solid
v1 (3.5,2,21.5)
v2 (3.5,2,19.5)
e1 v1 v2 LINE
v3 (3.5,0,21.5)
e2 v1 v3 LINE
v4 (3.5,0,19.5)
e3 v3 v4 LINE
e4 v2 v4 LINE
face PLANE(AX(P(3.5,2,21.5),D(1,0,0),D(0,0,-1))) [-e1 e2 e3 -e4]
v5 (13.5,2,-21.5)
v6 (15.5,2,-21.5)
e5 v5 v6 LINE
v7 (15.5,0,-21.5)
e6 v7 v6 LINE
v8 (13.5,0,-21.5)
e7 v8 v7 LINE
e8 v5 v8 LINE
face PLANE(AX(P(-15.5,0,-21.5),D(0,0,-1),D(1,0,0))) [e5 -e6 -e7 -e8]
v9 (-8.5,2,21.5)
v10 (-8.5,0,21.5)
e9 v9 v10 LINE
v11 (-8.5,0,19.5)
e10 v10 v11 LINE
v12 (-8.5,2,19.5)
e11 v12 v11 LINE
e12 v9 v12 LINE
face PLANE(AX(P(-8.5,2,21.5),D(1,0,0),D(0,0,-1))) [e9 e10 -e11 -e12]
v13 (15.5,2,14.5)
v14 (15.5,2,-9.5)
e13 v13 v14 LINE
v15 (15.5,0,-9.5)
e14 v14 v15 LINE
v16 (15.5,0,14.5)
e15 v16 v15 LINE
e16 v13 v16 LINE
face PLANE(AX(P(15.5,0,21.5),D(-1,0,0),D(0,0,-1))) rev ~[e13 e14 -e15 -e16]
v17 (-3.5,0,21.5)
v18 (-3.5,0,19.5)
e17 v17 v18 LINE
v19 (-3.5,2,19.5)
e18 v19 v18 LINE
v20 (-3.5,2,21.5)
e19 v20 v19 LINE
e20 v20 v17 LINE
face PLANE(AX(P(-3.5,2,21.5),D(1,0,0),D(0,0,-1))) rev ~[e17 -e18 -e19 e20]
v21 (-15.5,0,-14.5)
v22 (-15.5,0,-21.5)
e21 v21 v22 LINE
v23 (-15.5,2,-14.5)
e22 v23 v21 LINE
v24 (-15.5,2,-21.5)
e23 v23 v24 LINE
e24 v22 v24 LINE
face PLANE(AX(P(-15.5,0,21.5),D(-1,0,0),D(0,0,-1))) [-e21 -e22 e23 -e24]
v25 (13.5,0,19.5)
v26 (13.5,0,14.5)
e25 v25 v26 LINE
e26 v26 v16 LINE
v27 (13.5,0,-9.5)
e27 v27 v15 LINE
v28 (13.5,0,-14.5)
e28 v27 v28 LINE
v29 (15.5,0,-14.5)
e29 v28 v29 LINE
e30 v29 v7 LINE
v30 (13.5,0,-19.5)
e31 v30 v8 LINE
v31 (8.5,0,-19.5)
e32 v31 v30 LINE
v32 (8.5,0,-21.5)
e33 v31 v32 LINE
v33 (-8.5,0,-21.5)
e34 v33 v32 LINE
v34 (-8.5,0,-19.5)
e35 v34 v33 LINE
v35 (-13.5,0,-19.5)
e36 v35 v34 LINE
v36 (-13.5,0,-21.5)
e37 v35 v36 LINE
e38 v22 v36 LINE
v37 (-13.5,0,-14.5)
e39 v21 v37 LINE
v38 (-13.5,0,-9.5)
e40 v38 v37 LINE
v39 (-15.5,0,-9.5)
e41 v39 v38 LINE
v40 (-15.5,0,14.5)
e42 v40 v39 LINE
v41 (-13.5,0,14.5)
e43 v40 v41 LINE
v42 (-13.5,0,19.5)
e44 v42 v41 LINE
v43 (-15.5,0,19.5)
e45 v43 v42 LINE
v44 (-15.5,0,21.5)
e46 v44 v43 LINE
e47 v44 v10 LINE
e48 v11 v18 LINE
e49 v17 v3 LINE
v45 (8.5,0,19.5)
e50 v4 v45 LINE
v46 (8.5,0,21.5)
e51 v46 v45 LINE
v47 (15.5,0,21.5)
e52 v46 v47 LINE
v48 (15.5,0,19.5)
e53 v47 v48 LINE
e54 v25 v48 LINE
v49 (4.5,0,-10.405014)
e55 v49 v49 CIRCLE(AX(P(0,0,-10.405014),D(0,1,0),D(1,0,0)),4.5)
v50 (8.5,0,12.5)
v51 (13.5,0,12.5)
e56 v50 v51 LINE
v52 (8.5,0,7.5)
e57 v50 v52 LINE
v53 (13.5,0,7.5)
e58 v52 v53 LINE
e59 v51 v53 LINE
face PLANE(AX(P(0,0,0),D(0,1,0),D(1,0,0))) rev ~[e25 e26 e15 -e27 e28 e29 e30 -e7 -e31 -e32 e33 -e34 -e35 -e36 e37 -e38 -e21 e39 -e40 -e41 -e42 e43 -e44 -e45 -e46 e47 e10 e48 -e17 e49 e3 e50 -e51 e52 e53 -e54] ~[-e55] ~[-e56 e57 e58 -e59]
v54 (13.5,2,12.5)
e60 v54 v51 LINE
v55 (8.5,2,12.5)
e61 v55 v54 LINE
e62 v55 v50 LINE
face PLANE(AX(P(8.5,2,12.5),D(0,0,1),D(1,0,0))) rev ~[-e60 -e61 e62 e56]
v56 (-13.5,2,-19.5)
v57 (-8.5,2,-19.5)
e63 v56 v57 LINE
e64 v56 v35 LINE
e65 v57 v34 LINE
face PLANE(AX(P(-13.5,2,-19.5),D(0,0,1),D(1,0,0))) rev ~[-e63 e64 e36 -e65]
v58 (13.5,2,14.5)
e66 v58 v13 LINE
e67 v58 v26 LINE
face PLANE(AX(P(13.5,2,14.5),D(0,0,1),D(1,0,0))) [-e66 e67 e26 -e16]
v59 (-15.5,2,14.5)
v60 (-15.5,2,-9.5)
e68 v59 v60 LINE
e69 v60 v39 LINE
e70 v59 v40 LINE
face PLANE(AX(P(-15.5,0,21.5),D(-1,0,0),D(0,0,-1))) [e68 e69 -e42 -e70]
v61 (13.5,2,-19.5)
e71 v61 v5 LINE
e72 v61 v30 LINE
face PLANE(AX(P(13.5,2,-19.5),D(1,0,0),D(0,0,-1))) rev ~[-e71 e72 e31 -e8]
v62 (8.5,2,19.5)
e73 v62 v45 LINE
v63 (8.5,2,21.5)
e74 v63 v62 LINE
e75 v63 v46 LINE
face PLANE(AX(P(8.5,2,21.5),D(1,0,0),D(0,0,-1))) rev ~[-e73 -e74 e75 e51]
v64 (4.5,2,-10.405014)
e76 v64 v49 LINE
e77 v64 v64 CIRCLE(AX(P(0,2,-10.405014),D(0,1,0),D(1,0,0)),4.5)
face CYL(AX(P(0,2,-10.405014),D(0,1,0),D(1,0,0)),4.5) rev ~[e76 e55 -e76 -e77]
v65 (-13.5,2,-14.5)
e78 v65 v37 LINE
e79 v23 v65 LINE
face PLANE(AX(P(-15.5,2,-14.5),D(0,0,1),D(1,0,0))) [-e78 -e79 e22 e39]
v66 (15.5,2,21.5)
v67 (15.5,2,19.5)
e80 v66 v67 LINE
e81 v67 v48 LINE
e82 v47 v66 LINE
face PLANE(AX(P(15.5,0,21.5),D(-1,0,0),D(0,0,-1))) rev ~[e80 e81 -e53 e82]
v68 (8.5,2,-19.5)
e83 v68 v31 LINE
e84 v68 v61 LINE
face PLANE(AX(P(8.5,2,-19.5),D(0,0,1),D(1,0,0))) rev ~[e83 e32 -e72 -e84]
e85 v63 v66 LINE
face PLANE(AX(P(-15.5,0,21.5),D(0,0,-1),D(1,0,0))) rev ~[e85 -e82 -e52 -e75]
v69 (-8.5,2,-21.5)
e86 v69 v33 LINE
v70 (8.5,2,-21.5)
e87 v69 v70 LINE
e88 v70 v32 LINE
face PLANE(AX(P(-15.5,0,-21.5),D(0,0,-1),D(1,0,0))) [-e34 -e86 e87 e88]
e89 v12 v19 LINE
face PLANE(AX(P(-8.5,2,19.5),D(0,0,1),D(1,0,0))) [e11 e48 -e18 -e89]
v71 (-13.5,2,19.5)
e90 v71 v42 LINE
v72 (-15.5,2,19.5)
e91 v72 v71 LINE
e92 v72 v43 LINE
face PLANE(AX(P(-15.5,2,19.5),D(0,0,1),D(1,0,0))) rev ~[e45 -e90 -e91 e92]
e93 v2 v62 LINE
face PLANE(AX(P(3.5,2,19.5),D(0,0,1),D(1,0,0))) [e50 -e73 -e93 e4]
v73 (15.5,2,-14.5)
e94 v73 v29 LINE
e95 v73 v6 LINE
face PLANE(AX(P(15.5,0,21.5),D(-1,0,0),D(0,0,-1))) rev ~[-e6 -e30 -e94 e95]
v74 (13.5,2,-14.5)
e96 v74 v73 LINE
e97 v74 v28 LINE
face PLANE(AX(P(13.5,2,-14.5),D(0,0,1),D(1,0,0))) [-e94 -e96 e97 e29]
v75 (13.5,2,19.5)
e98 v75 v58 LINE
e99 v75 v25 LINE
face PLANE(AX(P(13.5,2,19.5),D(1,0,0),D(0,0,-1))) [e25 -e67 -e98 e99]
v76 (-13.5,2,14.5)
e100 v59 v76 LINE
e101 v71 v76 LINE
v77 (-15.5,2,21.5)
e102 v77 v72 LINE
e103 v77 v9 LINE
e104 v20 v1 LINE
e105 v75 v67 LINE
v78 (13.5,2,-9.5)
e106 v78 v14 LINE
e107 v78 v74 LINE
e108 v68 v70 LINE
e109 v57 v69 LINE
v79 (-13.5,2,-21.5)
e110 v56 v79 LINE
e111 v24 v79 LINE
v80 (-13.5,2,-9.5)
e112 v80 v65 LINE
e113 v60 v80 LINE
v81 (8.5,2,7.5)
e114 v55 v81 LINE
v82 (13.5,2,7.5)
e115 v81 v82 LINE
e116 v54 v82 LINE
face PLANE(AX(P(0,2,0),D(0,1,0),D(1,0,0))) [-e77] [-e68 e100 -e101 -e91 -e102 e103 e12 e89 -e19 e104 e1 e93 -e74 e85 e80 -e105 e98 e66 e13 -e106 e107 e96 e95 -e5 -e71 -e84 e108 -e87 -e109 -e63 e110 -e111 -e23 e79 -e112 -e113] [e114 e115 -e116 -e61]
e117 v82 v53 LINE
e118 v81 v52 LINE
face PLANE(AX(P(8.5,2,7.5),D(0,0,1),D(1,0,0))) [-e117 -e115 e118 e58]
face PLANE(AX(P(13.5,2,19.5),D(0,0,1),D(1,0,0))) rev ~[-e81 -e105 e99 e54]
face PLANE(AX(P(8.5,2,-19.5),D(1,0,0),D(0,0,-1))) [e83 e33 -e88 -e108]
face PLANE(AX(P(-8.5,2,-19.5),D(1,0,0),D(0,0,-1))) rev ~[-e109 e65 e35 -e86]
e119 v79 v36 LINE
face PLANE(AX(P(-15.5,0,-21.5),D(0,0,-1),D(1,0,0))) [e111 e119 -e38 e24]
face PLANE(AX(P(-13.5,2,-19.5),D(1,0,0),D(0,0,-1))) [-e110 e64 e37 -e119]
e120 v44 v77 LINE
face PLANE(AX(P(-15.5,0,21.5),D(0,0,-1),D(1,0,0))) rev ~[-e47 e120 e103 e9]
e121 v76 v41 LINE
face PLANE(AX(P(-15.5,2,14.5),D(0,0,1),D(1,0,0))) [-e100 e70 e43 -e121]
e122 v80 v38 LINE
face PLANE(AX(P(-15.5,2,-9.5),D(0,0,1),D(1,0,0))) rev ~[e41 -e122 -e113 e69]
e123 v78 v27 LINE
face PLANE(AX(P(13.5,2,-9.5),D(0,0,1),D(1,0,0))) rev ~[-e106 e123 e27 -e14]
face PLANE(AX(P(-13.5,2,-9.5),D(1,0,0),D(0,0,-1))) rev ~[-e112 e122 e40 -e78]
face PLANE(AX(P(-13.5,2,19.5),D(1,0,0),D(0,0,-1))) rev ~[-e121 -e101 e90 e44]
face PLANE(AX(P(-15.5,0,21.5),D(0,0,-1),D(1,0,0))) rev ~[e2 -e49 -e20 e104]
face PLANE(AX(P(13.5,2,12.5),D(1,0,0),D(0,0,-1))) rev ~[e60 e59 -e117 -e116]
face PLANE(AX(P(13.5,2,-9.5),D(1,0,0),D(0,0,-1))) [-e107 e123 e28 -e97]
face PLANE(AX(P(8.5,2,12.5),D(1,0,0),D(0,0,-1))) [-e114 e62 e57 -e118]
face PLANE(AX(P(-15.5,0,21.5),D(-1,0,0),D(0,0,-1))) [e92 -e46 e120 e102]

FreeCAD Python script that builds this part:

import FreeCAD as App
import Part
import Sketcher

V = App.Vector
Q = App.Units.Quantity

doc = App.newDocument("Part")
body = doc.addObject("PartDesign::Body", "Body")

# Sketch on XZ plane
sketch1 = doc.addObject("Sketcher::SketchObject", "Sketch")
body.addObject(sketch1)
sketch1.AttachmentSupport = (doc.XZ_Plane, [""])
sketch1.MapMode = "FlatFace"
sketch1.addGeometry([
    Part.LineSegment(V(-15.5, -21.5, 0), V(-15.5, 21.5, 0)),
    Part.LineSegment(V(-15.5, 21.5, 0), V(15.5, 21.5, 0)),
    Part.LineSegment(V(15.5, 21.5, 0), V(15.5, -21.5, 0)),
    Part.LineSegment(V(15.5, -21.5, 0), V(-15.5, -21.5, 0)),
], False)
sketch1.addConstraint([
    Sketcher.Constraint("Coincident", 0, 2, 1, 1),
    Sketcher.Constraint("Coincident", 1, 2, 2, 1),
    Sketcher.Constraint("Coincident", 2, 2, 3, 1),
    Sketcher.Constraint("Coincident", 3, 2, 0, 1),
    Sketcher.Constraint("Vertical", 0),
    Sketcher.Constraint("Horizontal", 1),
    Sketcher.Constraint("Vertical", 2),
    Sketcher.Constraint("Horizontal", 3),
    Sketcher.Constraint("Symmetric", 0, 2, 2, 2, -1, 1),
    Sketcher.Constraint("DistanceX", 1, 1, 1, 2, Q("31 mm")),
    Sketcher.Constraint("DistanceY", 0, 1, 0, 2, Q("43 mm")),
])
pad1 = doc.addObject("PartDesign::Pad", "Pad")
body.addObject(pad1)
pad1.Profile = sketch1
pad1.Length = 2
pad1.Reversed = True

# Sketch on XZ plane
sketch2 = doc.addObject("Sketcher::SketchObject", "Sketch001")
body.addObject(sketch2)
sketch2.AttachmentSupport = (doc.XZ_Plane, [""])
sketch2.MapMode = "FlatFace"
sketch2.AttachmentOffset = App.Placement(V(0, 0, -2), App.Rotation())
sketch2.addGeometry([
    Part.LineSegment(V(8.5, -21.5, 0), V(8.5, -19.5, 0)),  # 0
    Part.LineSegment(V(8.5, -19.5, 0), V(13.5, -19.5, 0)),  # 1
    Part.LineSegment(V(13.5, -19.5, 0), V(13.5, -21.5, 0)),  # 2
    Part.LineSegment(V(13.5, -21.5, 0), V(8.5, -21.5, 0)),  # 3
    Part.LineSegment(V(-13.5, -21.5, 0), V(-13.5, -19.5, 0)),  # 4
    Part.LineSegment(V(-13.5, -19.5, 0), V(-8.5, -19.5, 0)),  # 5
    Part.LineSegment(V(-8.5, -19.5, 0), V(-8.5, -21.5, 0)),  # 6
    Part.LineSegment(V(-8.5, -21.5, 0), V(-13.5, -21.5, 0)),  # 7
], False)
sketch2.addConstraint([
    Sketcher.Constraint("Coincident", 0, 2, 1, 1),
    Sketcher.Constraint("Coincident", 1, 2, 2, 1),
    Sketcher.Constraint("Coincident", 2, 2, 3, 1),
    Sketcher.Constraint("Coincident", 3, 2, 0, 1),
    Sketcher.Constraint("Coincident", 4, 2, 5, 1),
    Sketcher.Constraint("Coincident", 5, 2, 6, 1),
    Sketcher.Constraint("Coincident", 6, 2, 7, 1),
    Sketcher.Constraint("Coincident", 7, 2, 4, 1),
    Sketcher.Constraint("Vertical", 0),
    Sketcher.Constraint("Horizontal", 1),
    Sketcher.Constraint("Vertical", 2),
    Sketcher.Constraint("Horizontal", 3),
    Sketcher.Constraint("Vertical", 4),
    Sketcher.Constraint("Horizontal", 5),
    Sketcher.Constraint("Vertical", 6),
    Sketcher.Constraint("Horizontal", 7),
    Sketcher.Constraint("Symmetric", 1, 2, 4, 2, -2),
    Sketcher.Constraint("Symmetric", 3, 2, 6, 2, -2),
    Sketcher.Constraint("DistanceX", 1, 1, 1, 2, Q("5 mm")),
    Sketcher.Constraint("DistanceY", 0, 1, 0, 2, Q("2 mm")),
    Sketcher.Constraint("DistanceX", 4, 2, 0, 2, Q("22 mm")),
    Sketcher.Constraint("DistanceY", 0, 2, -1, 1, Q("19.5 mm")),
])
pocket1 = doc.addObject("PartDesign::Pocket", "Pocket")
body.addObject(pocket1)
pocket1.Profile = sketch2
pocket1.Length = 2
pocket1.Reversed = True

# Sketch on XZ plane
sketch3 = doc.addObject("Sketcher::SketchObject", "Sketch002")
body.addObject(sketch3)
sketch3.AttachmentSupport = (doc.XZ_Plane, [""])
sketch3.MapMode = "FlatFace"
sketch3.AttachmentOffset = App.Placement(V(0, 0, -2), App.Rotation())
sketch3.addGeometry([
    Part.Circle(V(0, -10.405014, 0), V(0, 0, 1), 4.5),  # 0
    Part.LineSegment(V(8.5, 7.5, 0), V(8.5, 12.5, 0)),  # 1
    Part.LineSegment(V(8.5, 12.5, 0), V(13.5, 12.5, 0)),  # 2
    Part.LineSegment(V(13.5, 12.5, 0), V(13.5, 7.5, 0)),  # 3
    Part.LineSegment(V(13.5, 7.5, 0), V(8.5, 7.5, 0)),  # 4
    Part.LineSegment(V(13.5, 14.5, 0), V(13.5, 19.5, 0)),  # 5
    Part.LineSegment(V(13.5, 19.5, 0), V(15.5, 19.5, 0)),  # 6
    Part.LineSegment(V(15.5, 19.5, 0), V(15.5, 14.5, 0)),  # 7
    Part.LineSegment(V(15.5, 14.5, 0), V(13.5, 14.5, 0)),  # 8
    Part.LineSegment(V(3.5, 19.5, 0), V(3.5, 21.5, 0)),  # 9
    Part.LineSegment(V(3.5, 21.5, 0), V(8.5, 21.5, 0)),  # 10
    Part.LineSegment(V(8.5, 21.5, 0), V(8.5, 19.5, 0)),  # 11
    Part.LineSegment(V(8.5, 19.5, 0), V(3.5, 19.5, 0)),  # 12
    Part.LineSegment(V(-15.5, 14.5, 0), V(-15.5, 19.5, 0)),  # 13
    Part.LineSegment(V(-15.5, 19.5, 0), V(-13.5, 19.5, 0)),  # 14
    Part.LineSegment(V(-13.5, 19.5, 0), V(-13.5, 14.5, 0)),  # 15
    Part.LineSegment(V(-13.5, 14.5, 0), V(-15.5, 14.5, 0)),  # 16
    Part.LineSegment(V(-8.5, 19.5, 0), V(-8.5, 21.5, 0)),  # 17
    Part.LineSegment(V(-8.5, 21.5, 0), V(-3.5, 21.5, 0)),  # 18
    Part.LineSegment(V(-3.5, 21.5, 0), V(-3.5, 19.5, 0)),  # 19
    Part.LineSegment(V(-3.5, 19.5, 0), V(-8.5, 19.5, 0)),  # 20
    Part.LineSegment(V(13.5, -14.5, 0), V(13.5, -9.5, 0)),  # 21
    Part.LineSegment(V(13.5, -9.5, 0), V(15.5, -9.5, 0)),  # 22
    Part.LineSegment(V(15.5, -9.5, 0), V(15.5, -14.5, 0)),  # 23
    Part.LineSegment(V(15.5, -14.5, 0), V(13.5, -14.5, 0)),  # 24
    Part.LineSegment(V(-15.5, -14.5, 0), V(-15.5, -9.5, 0)),  # 25
    Part.LineSegment(V(-15.5, -9.5, 0), V(-13.5, -9.5, 0)),  # 26
    Part.LineSegment(V(-13.5, -9.5, 0), V(-13.5, -14.5, 0)),  # 27
    Part.LineSegment(V(-13.5, -14.5, 0), V(-15.5, -14.5, 0)),  # 28
], False)
sketch3.addConstraint([
    Sketcher.Constraint("Coincident", 1, 2, 2, 1),
    Sketcher.Constraint("Coincident", 2, 2, 3, 1),
    Sketcher.Constraint("Coincident", 3, 2, 4, 1),
    Sketcher.Constraint("Coincident", 4, 2, 1, 1),
    Sketcher.Constraint("Coincident", 5, 2, 6, 1),
    Sketcher.Constraint("Coincident", 6, 2, 7, 1),
    Sketcher.Constraint("Coincident", 7, 2, 8, 1),
    Sketcher.Constraint("Coincident", 8, 2, 5, 1),
    Sketcher.Constraint("Coincident", 9, 2, 10, 1),
    Sketcher.Constraint("Coincident", 10, 2, 11, 1),
    Sketcher.Constraint("Coincident", 11, 2, 12, 1),
    Sketcher.Constraint("Coincident", 12, 2, 9, 1),
    Sketcher.Constraint("Coincident", 13, 2, 14, 1),
    Sketcher.Constraint("Coincident", 14, 2, 15, 1),
    Sketcher.Constraint("Coincident", 15, 2, 16, 1),
    Sketcher.Constraint("Coincident", 16, 2, 13, 1),
    Sketcher.Constraint("Coincident", 17, 2, 18, 1),
    Sketcher.Constraint("Coincident", 18, 2, 19, 1),
    Sketcher.Constraint("Coincident", 19, 2, 20, 1),
    Sketcher.Constraint("Coincident", 20, 2, 17, 1),
    Sketcher.Constraint("Coincident", 21, 2, 22, 1),
    Sketcher.Constraint("Coincident", 22, 2, 23, 1),
    Sketcher.Constraint("Coincident", 23, 2, 24, 1),
    Sketcher.Constraint("Coincident", 24, 2, 21, 1),
    Sketcher.Constraint("Coincident", 25, 2, 26, 1),
    Sketcher.Constraint("Coincident", 26, 2, 27, 1),
    Sketcher.Constraint("Coincident", 27, 2, 28, 1),
    Sketcher.Constraint("Coincident", 28, 2, 25, 1),
    Sketcher.Constraint("Vertical", 1),
    Sketcher.Constraint("Horizontal", 2),
    Sketcher.Constraint("Vertical", 3),
    Sketcher.Constraint("Horizontal", 4),
    Sketcher.Constraint("Vertical", 5),
    Sketcher.Constraint("Horizontal", 6),
    Sketcher.Constraint("Vertical", 7),
    Sketcher.Constraint("Horizontal", 8),
    Sketcher.Constraint("Vertical", 9),
    Sketcher.Constraint("Horizontal", 10),
    Sketcher.Constraint("Vertical", 11),
    Sketcher.Constraint("Horizontal", 12),
    Sketcher.Constraint("Vertical", 13),
    Sketcher.Constraint("Horizontal", 14),
    Sketcher.Constraint("Vertical", 15),
    Sketcher.Constraint("Horizontal", 16),
    Sketcher.Constraint("Vertical", 17),
    Sketcher.Constraint("Horizontal", 18),
    Sketcher.Constraint("Vertical", 19),
    Sketcher.Constraint("Horizontal", 20),
    Sketcher.Constraint("Vertical", 21),
    Sketcher.Constraint("Horizontal", 22),
    Sketcher.Constraint("Vertical", 23),
    Sketcher.Constraint("Horizontal", 24),
    Sketcher.Constraint("Vertical", 25),
    Sketcher.Constraint("Horizontal", 26),
    Sketcher.Constraint("Vertical", 27),
    Sketcher.Constraint("Horizontal", 28),
    Sketcher.Constraint("Symmetric", 16, 2, 23, 2, -1, 1),
    Sketcher.Constraint("Symmetric", 8, 2, 27, 2, -1, 1),
    Sketcher.Constraint("Symmetric", 6, 2, 13, 2, -2),
    Sketcher.Constraint("Symmetric", 8, 2, 15, 2, -2),
    Sketcher.Constraint("Symmetric", 10, 2, 17, 2, -2),
    Sketcher.Constraint("Symmetric", 12, 2, 19, 2, -2),
    Sketcher.Constraint("Symmetric", 22, 2, 25, 2, -2),
    Sketcher.Constraint("PointOnObject", 0, 3, -2),
    Sketcher.Constraint("Horizontal", 6, 2, 11, 2),
    Sketcher.Constraint("Vertical", 3, 2, 5, 2),
    Sketcher.Constraint("Vertical", 4, 2, 10, 2),
    Sketcher.Constraint("Vertical", 8, 2, 21, 2),
    Sketcher.Constraint("Equal", 4, 10),
    Sketcher.Constraint("Equal", 20, 1),
    Sketcher.Constraint("Equal", 3, 5),
    Sketcher.Constraint("Equal", 28, 9),
    Sketcher.Constraint("Equal", 15, 21),
    Sketcher.Constraint("Diameter", 0, Q("9 mm")),
    Sketcher.Constraint("DistanceX", 2, 1, 2, 2, Q("5 mm")),
    Sketcher.Constraint("DistanceX", 6, 1, 6, 2, Q("2 mm")),
    Sketcher.Constraint("DistanceY", 2, 2, 5, 2, Q("7 mm")),
    Sketcher.Constraint("DistanceX", 13, 2, 12, 2, Q("19 mm")),
    Sketcher.Constraint("DistanceY", 21, 2, 3, 2, Q("17 mm")),
    Sketcher.Constraint("DistanceY", 0, 3, -1, 1, Q("10.405014 mm")),
])
pocket2 = doc.addObject("PartDesign::Pocket", "Pocket001")
body.addObject(pocket2)
pocket2.Profile = sketch3
pocket2.Length = 2
pocket2.Reversed = True

doc.recompute()
